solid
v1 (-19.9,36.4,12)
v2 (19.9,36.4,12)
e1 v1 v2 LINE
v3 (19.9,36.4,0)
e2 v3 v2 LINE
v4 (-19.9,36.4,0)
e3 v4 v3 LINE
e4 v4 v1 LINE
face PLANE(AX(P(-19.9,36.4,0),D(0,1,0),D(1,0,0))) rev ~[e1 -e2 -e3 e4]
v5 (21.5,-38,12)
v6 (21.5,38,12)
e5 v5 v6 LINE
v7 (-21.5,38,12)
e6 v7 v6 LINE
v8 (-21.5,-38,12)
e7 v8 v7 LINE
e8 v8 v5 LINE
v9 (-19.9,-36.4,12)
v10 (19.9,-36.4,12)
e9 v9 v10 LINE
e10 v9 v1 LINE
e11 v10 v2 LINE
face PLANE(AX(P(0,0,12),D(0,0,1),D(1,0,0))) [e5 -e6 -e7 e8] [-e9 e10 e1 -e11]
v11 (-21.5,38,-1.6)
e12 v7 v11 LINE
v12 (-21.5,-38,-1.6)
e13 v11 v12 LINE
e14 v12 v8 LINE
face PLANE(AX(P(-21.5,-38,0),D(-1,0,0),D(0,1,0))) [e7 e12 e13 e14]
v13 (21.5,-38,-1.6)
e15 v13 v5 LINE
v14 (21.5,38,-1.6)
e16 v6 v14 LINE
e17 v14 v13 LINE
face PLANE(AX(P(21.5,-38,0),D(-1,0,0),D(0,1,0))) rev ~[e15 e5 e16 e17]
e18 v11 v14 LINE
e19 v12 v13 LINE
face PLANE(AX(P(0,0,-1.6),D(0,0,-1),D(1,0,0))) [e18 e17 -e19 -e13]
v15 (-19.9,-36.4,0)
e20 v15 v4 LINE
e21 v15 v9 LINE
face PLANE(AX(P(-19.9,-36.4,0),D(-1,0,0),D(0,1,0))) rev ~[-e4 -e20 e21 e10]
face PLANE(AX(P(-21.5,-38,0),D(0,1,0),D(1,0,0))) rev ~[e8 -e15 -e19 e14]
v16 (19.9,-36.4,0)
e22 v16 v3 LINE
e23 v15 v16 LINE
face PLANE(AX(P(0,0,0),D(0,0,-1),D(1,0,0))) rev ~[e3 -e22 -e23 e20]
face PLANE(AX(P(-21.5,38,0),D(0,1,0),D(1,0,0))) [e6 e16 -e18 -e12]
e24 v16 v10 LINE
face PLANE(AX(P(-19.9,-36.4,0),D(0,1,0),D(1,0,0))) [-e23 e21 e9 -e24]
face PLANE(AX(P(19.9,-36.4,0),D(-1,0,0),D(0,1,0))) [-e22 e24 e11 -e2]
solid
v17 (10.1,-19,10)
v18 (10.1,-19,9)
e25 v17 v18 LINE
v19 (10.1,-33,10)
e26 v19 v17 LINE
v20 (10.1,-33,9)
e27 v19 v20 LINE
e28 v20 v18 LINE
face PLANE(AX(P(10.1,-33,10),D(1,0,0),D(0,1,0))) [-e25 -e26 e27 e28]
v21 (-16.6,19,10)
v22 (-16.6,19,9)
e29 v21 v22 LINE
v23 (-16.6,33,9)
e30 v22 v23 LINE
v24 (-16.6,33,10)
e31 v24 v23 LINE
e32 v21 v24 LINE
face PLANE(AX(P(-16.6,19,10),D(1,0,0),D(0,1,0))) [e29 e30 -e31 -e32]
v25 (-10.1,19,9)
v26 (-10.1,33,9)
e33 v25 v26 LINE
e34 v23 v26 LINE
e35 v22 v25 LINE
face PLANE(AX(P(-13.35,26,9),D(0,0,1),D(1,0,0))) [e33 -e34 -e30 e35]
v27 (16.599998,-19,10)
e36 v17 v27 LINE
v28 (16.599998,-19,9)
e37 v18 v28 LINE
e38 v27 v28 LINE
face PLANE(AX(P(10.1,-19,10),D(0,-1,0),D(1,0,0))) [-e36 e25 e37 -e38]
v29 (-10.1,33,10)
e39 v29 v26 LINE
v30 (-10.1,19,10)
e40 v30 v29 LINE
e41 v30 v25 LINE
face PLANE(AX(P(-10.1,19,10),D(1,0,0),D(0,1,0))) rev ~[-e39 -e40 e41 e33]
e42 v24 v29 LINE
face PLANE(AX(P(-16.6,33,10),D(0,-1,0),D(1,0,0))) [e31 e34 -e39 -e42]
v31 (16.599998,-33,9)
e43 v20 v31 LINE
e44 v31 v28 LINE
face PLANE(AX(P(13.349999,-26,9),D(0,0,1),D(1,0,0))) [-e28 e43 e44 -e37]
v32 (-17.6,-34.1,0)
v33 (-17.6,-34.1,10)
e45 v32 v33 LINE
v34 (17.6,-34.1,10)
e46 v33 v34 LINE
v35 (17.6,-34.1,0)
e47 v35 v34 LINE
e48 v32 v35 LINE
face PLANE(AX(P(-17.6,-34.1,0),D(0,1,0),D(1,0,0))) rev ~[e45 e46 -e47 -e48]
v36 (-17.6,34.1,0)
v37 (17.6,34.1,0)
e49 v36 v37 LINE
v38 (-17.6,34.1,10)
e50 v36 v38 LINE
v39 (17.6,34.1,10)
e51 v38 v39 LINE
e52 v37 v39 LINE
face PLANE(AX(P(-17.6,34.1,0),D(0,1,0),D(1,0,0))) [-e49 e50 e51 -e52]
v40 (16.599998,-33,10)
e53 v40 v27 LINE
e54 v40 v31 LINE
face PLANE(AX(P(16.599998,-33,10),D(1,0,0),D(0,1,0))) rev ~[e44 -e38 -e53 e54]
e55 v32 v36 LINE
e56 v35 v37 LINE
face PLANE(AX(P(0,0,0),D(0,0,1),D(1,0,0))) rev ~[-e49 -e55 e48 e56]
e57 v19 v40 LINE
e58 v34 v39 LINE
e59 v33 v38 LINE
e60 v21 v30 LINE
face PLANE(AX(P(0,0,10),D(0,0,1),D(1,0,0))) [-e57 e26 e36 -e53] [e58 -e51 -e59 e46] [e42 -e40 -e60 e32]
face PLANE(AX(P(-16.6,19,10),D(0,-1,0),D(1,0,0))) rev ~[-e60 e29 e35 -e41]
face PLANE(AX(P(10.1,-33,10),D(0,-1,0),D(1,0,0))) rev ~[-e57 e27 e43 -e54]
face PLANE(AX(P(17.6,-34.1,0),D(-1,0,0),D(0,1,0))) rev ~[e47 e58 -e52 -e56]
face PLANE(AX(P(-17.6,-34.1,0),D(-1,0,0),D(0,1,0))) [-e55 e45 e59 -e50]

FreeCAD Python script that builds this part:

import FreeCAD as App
import Part
import Sketcher

V = App.Vector

doc = App.newDocument("Part")
body = doc.addObject("PartDesign::Body", "Body")

# Sketch on XY plane
sketch1 = body.newObject("Sketcher::SketchObject", "Sketch")
sketch1.AttachmentSupport = (doc.getObject("XY_Plane"), [""])
sketch1.MapMode = "FlatFace"
sketch1.addGeometry([
    Part.LineSegment(V(-18, 34, 0), V(-18, -34, 0)),
    Part.LineSegment(V(-18, -34, 0), V(18, -34, 0)),
    Part.LineSegment(V(18, -34, 0), V(18, 34, 0)),
    Part.LineSegment(V(18, 34, 0), V(-18, 34, 0)),
], False)
sketch1.addConstraint([
    Sketcher.Constraint("Coincident", 0, 2, 1, 1),
    Sketcher.Constraint("Coincident", 1, 2, 2, 1),
    Sketcher.Constraint("Coincident", 2, 2, 3, 1),
    Sketcher.Constraint("Coincident", 3, 2, 0, 1),
    Sketcher.Constraint("Vertical", 0),
    Sketcher.Constraint("Horizontal", 1),
    Sketcher.Constraint("Vertical", 2),
    Sketcher.Constraint("Horizontal", 3),
    Sketcher.Constraint("Symmetric", 0, 2, 2, 2, -1, 1),
    Sketcher.Constraint("DistanceX", 1, 1, 1, 2, 35.2),
    Sketcher.Constraint("DistanceY", 0, 2, 0, 1, 68.2),
])
pad1 = body.newObject("PartDesign::Pad", "Pad")
pad1.Profile = sketch1
pad1.Length = 10

# Sketch on XY plane
sketch2 = body.newObject("Sketcher::SketchObject", "Sketch001")
sketch2.AttachmentSupport = (doc.getObject("XY_Plane"), [""])
sketch2.MapMode = "FlatFace"
sketch2.AttachmentOffset = App.Placement(V(0, 0, 10), App.Rotation())
sketch2.addGeometry([
    Part.LineSegment(V(-17, 33, 0), V(-17, 19, 0)),  # 0
    Part.LineSegment(V(-17, 19, 0), V(-10, 19, 0)),  # 1
    Part.LineSegment(V(-10, 19, 0), V(-10, 33, 0)),  # 2
    Part.LineSegment(V(-10, 33, 0), V(-17, 33, 0)),  # 3
    Part.LineSegment(V(10, -19, 0), V(10, -33, 0)),  # 4
    Part.LineSegment(V(10, -33, 0), V(17, -33, 0)),  # 5
    Part.LineSegment(V(17, -33, 0), V(17, -19, 0)),  # 6
    Part.LineSegment(V(17, -19, 0), V(10, -19, 0)),  # 7
], False)
sketch2.addConstraint([
    Sketcher.Constraint("Coincident", 0, 2, 1, 1),
    Sketcher.Constraint("Coincident", 1, 2, 2, 1),
    Sketcher.Constraint("Coincident", 2, 2, 3, 1),
    Sketcher.Constraint("Coincident", 3, 2, 0, 1),
    Sketcher.Constraint("Coincident", 4, 2, 5, 1),
    Sketcher.Constraint("Coincident", 5, 2, 6, 1),
    Sketcher.Constraint("Coincident", 6, 2, 7, 1),
    Sketcher.Constraint("Coincident", 7, 2, 4, 1),
    Sketcher.Constraint("Vertical", 0),
    Sketcher.Constraint("Horizontal", 1),
    Sketcher.Constraint("Vertical", 2),
    Sketcher.Constraint("Horizontal", 3),
    Sketcher.Constraint("Vertical", 4),
    Sketcher.Constraint("Horizontal", 5),
    Sketcher.Constraint("Vertical", 6),
    Sketcher.Constraint("Horizontal", 7),
    Sketcher.Constraint("Symmetric", 2, 2, 4, 2, -1, 1),
    Sketcher.Constraint("Symmetric", 0, 2, 6, 2, -1, 1),
    Sketcher.Constraint("DistanceY", 0, 2, 0, 1, 14.0),
    Sketcher.Constraint("DistanceX", 1, 1, 1, 2, 6.5),
    Sketcher.Constraint("DistanceY", -1, 1, 0, 2, 19.0),
    Sketcher.Constraint("DistanceX", 0, 2, -1, 1, 16.6),
])
pocket1 = body.newObject("PartDesign::Pocket", "Pocket")
pocket1.Profile = sketch2
pocket1.Length = 1
body2 = doc.addObject("PartDesign::Body", "Body001")

# Sketch on XY plane
sketch3 = body2.newObject("Sketcher::SketchObject", "Sketch002")
sketch3.AttachmentSupport = (doc.getObject("XY_Plane001"), [""])
sketch3.MapMode = "FlatFace"
sketch3.addGeometry([
    Part.LineSegment(V(-22, -38, 0), V(-22, 38, 0)),
    Part.LineSegment(V(-22, 38, 0), V(22, 38, 0)),
    Part.LineSegment(V(22, 38, 0), V(22, -38, 0)),
    Part.LineSegment(V(22, -38, 0), V(-22, -38, 0)),
], False)
sketch3.addConstraint([
    Sketcher.Constraint("Coincident", 0, 2, 1, 1),
    Sketcher.Constraint("Coincident", 1, 2, 2, 1),
    Sketcher.Constraint("Coincident", 2, 2, 3, 1),
    Sketcher.Constraint("Coincident", 3, 2, 0, 1),
    Sketcher.Constraint("Vertical", 0),
    Sketcher.Constraint("Horizontal", 1),
    Sketcher.Constraint("Vertical", 2),
    Sketcher.Constraint("Horizontal", 3),
    Sketcher.Constraint("Symmetric", 0, 2, 2, 2, -1, 1),
    Sketcher.Constraint("DistanceX", 1, 1, 1, 2, 43.0),
    Sketcher.Constraint("DistanceY", 0, 1, 0, 2, 76.0),
])
pad2 = body2.newObject("PartDesign::Pad", "Pad001")
pad2.Profile = sketch3
pad2.Length = 1.6
pad2.Reversed = True

# Sketch on XY plane
sketch4 = body2.newObject("Sketcher::SketchObject", "Sketch003")
sketch4.AttachmentSupport = (doc.getObject("XY_Plane001"), [""])
sketch4.MapMode = "FlatFace"
sketch4.addGeometry([
    Part.LineSegment(V(-22, 38, 0), V(-22, -38, 0)),  # 0
    Part.LineSegment(V(-22, -38, 0), V(22, -38, 0)),  # 1
    Part.LineSegment(V(22, -38, 0), V(22, 38, 0)),  # 2
    Part.LineSegment(V(22, 38, 0), V(-22, 38, 0)),  # 3
    Part.LineSegment(V(20, -36, 0), V(-20, -36, 0)),  # 4
    Part.LineSegment(V(-20, -36, 0), V(-20, 36, 0)),  # 5
    Part.LineSegment(V(-20, 36, 0), V(20, 36, 0)),  # 6
    Part.LineSegment(V(20, 36, 0), V(20, -36, 0)),  # 7
], False)
sketch4.addConstraint([
    Sketcher.Constraint("Coincident", 0, 2, 1, 1),
    Sketcher.Constraint("Coincident", 1, 2, 2, 1),
    Sketcher.Constraint("Coincident", 2, 2, 3, 1),
    Sketcher.Constraint("Coincident", 3, 2, 0, 1),
    Sketcher.Constraint("Coincident", 4, 2, 5, 1),
    Sketcher.Constraint("Coincident", 5, 2, 6, 1),
    Sketcher.Constraint("Coincident", 6, 2, 7, 1),
    Sketcher.Constraint("Coincident", 7, 2, 4, 1),
    Sketcher.Constraint("Vertical", 0),
    Sketcher.Constraint("Horizontal", 1),
    Sketcher.Constraint("Vertical", 2),
    Sketcher.Constraint("Horizontal", 3),
    Sketcher.Constraint("Horizontal", 4),
    Sketcher.Constraint("Vertical", 5),
    Sketcher.Constraint("Horizontal", 6),
    Sketcher.Constraint("Vertical", 7),
    Sketcher.Constraint("Symmetric", 0, 2, 2, 2, -1, 1),
    Sketcher.Constraint("Symmetric", 4, 2, 6, 2, -1, 1),
    Sketcher.Constraint("DistanceX", 1, 1, 1, 2, 43.0),
    Sketcher.Constraint("DistanceY", 0, 2, 0, 1, 76.0),
    Sketcher.Constraint("DistanceX", 4, 2, 4, 1, 39.8),
    Sketcher.Constraint("DistanceY", 5, 1, 5, 2, 72.8),
])
pad3 = body2.newObject("PartDesign::Pad", "Pad002")
pad3.Profile = sketch4
pad3.Length = 12

doc.recompute()
